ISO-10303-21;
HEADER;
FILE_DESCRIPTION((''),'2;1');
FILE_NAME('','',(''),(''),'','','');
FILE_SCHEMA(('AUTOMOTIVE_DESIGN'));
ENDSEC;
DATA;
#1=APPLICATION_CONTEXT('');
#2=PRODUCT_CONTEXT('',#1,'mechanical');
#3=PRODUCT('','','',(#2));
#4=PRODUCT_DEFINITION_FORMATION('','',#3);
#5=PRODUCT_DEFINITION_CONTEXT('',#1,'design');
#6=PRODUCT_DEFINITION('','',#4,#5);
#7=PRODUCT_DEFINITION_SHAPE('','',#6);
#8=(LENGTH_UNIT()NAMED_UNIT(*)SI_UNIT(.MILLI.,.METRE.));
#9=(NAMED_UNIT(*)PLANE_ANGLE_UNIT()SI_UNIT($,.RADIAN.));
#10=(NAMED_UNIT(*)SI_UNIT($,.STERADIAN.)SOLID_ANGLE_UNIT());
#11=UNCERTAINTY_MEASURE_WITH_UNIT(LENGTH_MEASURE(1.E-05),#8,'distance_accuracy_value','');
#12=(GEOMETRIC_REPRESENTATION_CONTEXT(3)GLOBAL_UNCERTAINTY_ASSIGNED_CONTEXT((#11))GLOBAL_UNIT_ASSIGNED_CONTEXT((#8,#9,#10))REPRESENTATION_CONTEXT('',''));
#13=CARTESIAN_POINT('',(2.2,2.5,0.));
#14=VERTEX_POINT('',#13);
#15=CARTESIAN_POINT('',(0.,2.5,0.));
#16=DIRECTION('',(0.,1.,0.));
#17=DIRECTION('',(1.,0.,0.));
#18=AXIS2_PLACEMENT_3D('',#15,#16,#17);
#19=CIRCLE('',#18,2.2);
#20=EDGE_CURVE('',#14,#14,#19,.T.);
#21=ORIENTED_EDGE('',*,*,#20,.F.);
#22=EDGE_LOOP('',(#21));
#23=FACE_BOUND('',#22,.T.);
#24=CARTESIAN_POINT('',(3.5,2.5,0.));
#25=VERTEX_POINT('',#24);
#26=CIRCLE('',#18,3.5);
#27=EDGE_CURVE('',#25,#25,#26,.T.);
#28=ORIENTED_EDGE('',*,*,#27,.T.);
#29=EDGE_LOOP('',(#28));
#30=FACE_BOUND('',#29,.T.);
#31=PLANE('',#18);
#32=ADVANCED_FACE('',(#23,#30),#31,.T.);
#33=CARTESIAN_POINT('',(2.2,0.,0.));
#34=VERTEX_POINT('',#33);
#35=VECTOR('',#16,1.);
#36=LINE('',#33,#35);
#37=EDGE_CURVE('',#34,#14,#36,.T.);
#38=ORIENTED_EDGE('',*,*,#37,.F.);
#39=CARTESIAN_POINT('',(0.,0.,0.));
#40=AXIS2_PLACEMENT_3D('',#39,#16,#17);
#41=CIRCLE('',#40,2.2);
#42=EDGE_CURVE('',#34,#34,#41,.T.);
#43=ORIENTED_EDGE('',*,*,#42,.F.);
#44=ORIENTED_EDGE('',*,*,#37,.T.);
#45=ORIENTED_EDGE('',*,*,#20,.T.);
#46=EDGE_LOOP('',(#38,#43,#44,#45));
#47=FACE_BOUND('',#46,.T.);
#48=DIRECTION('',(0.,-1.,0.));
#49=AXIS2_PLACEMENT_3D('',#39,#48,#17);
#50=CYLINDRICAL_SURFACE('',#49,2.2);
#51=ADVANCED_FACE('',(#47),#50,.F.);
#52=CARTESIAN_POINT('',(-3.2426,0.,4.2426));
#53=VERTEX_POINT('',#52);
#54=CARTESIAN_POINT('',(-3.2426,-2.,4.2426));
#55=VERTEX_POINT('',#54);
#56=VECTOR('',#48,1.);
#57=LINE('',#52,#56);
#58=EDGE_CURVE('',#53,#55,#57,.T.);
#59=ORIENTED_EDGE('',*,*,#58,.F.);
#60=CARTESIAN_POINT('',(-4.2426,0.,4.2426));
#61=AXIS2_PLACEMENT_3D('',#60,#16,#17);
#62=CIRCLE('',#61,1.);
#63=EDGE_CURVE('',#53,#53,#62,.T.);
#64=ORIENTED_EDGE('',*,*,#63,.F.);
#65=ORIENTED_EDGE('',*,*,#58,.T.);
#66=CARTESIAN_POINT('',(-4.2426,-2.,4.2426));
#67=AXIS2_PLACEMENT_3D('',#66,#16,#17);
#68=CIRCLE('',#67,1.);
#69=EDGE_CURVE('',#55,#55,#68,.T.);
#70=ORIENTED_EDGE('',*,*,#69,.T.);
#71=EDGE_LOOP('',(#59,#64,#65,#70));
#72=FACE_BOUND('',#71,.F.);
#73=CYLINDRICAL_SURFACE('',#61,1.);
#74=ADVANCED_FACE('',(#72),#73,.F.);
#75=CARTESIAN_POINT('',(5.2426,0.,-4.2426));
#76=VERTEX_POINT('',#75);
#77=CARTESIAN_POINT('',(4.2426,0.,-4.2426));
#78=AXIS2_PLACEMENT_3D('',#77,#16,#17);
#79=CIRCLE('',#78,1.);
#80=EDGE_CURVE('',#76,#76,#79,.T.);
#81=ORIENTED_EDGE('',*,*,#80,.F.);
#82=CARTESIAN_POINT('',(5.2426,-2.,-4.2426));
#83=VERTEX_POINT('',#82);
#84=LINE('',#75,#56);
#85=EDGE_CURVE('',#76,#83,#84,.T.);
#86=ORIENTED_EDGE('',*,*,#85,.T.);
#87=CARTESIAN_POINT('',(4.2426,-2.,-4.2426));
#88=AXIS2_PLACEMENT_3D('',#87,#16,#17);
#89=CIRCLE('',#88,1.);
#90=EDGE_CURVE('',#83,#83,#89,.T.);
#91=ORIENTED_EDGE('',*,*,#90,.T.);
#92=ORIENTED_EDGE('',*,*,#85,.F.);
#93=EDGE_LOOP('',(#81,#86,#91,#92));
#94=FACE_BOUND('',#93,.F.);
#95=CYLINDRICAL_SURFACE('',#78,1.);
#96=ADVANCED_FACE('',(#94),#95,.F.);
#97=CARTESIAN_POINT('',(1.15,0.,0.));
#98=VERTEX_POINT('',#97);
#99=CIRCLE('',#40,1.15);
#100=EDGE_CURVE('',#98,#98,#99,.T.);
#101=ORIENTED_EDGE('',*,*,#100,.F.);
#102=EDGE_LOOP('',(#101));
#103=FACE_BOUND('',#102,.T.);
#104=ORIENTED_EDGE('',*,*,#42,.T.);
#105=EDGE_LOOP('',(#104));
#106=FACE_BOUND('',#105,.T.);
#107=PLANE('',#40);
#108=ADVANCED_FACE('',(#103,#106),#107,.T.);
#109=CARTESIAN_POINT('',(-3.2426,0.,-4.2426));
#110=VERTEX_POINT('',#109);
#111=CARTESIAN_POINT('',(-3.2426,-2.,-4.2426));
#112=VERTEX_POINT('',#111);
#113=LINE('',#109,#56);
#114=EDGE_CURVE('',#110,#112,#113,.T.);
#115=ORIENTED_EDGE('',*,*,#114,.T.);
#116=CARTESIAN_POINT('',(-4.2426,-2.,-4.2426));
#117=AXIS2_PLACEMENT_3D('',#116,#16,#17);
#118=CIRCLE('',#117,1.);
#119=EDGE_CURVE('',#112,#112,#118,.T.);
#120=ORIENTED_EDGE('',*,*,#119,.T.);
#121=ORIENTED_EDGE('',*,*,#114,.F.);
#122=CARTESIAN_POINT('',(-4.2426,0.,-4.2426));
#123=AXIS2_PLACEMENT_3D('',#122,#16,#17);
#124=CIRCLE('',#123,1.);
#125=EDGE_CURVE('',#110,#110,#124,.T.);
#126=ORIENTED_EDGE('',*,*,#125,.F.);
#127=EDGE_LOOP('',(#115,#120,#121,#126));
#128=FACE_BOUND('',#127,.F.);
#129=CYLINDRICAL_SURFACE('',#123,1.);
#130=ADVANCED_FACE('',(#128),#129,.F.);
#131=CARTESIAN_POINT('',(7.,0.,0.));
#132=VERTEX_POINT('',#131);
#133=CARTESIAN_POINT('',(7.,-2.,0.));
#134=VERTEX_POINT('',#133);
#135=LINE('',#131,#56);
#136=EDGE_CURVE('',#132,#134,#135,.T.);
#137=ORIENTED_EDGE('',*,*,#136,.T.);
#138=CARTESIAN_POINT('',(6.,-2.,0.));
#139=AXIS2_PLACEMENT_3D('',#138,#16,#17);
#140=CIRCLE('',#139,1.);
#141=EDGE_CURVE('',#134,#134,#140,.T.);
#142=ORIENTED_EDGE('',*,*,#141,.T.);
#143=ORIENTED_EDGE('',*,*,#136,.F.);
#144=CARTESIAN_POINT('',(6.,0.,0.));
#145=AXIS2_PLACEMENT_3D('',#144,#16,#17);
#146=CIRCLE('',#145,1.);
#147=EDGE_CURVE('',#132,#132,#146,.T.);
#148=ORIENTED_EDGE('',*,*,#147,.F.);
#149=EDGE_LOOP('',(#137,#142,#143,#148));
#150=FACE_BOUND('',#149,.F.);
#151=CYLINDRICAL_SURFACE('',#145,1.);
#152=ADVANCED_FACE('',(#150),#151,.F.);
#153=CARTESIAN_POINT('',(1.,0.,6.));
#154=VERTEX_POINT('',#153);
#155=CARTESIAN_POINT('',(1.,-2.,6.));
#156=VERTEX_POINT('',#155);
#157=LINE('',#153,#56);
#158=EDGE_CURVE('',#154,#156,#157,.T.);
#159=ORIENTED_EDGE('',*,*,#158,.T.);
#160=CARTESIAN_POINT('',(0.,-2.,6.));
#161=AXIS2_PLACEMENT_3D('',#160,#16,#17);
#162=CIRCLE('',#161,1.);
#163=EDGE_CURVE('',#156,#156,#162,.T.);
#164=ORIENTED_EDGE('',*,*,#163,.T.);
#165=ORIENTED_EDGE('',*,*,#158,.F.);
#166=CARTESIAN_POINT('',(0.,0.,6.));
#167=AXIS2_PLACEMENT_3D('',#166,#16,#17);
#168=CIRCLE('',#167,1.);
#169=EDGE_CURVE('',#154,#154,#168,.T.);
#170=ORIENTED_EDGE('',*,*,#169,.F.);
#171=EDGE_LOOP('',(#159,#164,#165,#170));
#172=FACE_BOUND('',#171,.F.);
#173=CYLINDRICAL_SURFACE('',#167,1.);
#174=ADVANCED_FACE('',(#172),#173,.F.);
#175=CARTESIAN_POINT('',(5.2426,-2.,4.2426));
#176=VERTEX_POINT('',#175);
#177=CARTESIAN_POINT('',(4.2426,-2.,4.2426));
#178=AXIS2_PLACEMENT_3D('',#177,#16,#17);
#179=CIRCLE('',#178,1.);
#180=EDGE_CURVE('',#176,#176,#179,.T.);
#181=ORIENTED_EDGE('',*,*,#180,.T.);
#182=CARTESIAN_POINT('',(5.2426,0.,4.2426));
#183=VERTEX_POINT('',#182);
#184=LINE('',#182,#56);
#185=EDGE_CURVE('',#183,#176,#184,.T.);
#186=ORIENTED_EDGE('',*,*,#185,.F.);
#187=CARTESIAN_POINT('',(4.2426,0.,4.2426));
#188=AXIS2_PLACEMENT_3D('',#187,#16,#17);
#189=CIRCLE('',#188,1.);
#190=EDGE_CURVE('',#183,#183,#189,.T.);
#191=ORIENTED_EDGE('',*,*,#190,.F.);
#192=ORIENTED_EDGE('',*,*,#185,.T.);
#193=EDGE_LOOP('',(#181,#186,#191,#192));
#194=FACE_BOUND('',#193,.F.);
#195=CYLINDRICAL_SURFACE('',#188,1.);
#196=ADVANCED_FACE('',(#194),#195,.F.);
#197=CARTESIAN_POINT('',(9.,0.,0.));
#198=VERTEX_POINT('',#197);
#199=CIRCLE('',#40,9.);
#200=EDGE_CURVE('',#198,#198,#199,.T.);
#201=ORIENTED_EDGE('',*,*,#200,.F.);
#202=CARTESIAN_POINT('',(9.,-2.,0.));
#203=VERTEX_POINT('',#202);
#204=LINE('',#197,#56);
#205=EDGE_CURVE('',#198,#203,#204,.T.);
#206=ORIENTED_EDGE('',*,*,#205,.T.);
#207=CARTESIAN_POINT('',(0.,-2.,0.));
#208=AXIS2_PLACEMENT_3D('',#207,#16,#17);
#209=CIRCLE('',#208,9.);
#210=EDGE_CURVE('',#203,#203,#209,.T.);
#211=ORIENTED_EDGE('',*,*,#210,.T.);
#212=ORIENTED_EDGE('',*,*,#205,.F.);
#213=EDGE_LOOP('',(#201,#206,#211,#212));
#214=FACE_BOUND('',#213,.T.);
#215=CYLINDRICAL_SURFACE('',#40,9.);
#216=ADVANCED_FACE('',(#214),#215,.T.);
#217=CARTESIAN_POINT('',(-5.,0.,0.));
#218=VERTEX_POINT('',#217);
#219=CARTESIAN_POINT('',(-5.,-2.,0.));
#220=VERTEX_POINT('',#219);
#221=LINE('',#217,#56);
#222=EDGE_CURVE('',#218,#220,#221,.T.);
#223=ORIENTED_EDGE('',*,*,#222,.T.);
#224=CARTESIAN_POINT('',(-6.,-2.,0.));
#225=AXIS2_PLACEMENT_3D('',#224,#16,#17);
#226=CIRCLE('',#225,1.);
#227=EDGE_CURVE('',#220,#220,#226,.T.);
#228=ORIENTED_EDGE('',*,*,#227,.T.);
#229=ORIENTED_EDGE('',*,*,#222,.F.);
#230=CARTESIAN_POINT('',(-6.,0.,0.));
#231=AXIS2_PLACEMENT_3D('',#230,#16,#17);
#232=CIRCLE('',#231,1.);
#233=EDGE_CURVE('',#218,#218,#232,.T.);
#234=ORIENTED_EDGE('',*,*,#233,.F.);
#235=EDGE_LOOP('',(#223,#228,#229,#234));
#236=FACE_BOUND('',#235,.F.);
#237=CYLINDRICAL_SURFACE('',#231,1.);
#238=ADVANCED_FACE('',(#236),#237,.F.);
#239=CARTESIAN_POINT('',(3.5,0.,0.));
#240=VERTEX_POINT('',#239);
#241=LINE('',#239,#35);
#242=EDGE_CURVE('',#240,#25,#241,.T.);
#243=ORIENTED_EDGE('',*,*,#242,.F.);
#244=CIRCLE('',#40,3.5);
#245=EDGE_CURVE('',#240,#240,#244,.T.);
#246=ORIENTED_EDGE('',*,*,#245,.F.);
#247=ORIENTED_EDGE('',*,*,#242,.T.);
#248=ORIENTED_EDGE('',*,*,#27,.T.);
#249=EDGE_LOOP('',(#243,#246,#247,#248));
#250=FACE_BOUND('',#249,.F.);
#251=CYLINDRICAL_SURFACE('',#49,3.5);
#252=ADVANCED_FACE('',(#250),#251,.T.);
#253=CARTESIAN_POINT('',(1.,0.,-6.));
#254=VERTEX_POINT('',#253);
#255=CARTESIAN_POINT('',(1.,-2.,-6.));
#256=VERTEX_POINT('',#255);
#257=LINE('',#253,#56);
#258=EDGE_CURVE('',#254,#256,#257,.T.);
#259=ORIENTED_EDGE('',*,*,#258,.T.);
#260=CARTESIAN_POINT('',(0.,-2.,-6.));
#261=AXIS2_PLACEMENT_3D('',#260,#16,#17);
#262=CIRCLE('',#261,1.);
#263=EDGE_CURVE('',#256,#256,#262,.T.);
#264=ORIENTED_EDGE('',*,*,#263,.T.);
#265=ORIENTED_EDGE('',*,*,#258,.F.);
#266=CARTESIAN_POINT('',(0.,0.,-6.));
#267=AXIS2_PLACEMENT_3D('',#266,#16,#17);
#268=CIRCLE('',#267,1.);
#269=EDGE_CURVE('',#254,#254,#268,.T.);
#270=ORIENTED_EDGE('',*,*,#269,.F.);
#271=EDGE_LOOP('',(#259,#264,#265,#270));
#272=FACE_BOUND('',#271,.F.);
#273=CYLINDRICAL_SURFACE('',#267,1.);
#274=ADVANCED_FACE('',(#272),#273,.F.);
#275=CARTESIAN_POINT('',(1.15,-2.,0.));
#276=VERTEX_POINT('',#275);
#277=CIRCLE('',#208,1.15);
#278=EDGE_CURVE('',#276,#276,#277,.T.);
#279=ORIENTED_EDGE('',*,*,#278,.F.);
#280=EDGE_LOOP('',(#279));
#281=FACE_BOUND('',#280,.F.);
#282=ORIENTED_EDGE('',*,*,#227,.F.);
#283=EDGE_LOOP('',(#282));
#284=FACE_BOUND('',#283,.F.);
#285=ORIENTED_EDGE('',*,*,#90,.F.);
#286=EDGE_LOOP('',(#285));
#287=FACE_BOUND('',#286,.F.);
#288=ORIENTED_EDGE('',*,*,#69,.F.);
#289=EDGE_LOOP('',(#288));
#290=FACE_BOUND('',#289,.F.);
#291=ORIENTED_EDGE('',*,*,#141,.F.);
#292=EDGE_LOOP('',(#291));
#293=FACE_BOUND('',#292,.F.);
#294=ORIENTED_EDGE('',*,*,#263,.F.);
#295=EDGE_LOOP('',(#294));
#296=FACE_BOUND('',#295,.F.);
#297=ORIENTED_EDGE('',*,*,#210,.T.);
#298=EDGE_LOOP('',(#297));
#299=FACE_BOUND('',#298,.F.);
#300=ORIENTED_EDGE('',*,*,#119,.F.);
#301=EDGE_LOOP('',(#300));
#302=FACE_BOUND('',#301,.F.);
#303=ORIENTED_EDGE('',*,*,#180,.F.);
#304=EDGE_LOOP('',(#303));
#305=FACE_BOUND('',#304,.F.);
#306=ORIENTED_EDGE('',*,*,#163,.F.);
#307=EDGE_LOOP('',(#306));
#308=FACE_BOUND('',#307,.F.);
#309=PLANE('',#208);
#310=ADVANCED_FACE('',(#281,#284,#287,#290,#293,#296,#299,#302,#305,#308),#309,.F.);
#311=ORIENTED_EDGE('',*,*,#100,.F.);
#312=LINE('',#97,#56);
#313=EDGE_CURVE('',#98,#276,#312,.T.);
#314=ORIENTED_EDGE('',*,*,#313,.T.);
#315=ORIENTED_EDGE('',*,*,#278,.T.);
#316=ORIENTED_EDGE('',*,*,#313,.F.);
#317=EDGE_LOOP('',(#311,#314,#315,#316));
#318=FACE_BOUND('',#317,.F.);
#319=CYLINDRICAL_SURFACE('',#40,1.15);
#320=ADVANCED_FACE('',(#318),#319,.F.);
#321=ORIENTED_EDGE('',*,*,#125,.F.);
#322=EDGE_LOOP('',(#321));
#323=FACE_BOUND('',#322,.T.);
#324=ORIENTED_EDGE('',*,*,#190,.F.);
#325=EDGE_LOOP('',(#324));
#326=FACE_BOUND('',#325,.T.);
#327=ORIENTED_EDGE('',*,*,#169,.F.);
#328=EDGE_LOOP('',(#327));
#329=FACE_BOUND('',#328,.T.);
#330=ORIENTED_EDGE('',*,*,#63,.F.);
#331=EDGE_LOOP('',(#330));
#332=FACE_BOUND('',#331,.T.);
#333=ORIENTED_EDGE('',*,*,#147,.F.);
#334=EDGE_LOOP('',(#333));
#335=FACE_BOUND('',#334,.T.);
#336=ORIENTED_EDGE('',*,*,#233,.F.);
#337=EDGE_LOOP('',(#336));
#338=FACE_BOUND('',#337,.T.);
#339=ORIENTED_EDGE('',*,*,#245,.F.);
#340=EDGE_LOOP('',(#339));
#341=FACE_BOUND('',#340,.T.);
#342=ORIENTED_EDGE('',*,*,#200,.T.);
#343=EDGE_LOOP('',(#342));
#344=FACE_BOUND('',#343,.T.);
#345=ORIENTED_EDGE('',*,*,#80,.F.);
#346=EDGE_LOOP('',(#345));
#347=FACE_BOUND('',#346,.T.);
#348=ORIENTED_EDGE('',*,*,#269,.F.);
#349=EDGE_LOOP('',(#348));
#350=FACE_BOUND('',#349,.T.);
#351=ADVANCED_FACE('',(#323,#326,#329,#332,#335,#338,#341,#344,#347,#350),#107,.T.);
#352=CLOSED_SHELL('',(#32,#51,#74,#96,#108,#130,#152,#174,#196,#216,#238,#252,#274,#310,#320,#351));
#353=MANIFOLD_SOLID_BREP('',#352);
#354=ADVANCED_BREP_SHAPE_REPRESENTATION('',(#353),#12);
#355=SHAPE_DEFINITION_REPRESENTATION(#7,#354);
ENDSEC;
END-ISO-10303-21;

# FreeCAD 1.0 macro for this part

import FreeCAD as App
import Part
import Sketcher
Q = App.Units.Quantity

doc = App.newDocument("Part")
body = doc.addObject("PartDesign::Body", "Body")

# Sketch on XZ plane
sketch1 = body.newObject("Sketcher::SketchObject", "Sketch")
sketch1.AttachmentSupport = (doc.getObject("XZ_Plane"), [""])
sketch1.MapMode = "FlatFace"
sketch1.addGeometry(Part.Circle(App.Vector(0, 0, 0), App.Vector(0, 0, 1), 9), False)
sketch1.addGeometry(Part.Circle(App.Vector(-4.2, 4.2, 0), App.Vector(0, 0, 1), 1), False)
sketch1.addGeometry(Part.Circle(App.Vector(0, 6, 0), App.Vector(0, 0, 1), 1), False)
sketch1.addGeometry(Part.Circle(App.Vector(4.2, 4.2, 0), App.Vector(0, 0, 1), 1), False)
sketch1.addGeometry(Part.Circle(App.Vector(-6, 0, 0), App.Vector(0, 0, 1), 1), False)
sketch1.addGeometry(Part.Circle(App.Vector(-4.2, -4.2, 0), App.Vector(0, 0, 1), 1), False)
sketch1.addGeometry(Part.Circle(App.Vector(4.2, -4.2, 0), App.Vector(0, 0, 1), 1), False)
sketch1.addGeometry(Part.Circle(App.Vector(6, 0, 0), App.Vector(0, 0, 1), 1), False)
sketch1.addGeometry(Part.Circle(App.Vector(0, -6, 0), App.Vector(0, 0, 1), 1), False)
sketch1.addGeometry(Part.Circle(App.Vector(0, 0, 0), App.Vector(0, 0, 1), 1.1), False)
sketch1.addConstraint(Sketcher.Constraint("Coincident", 0, 3, -1, 1))
sketch1.addConstraint(Sketcher.Constraint("Coincident", 9, 3, -1, 1))
sketch1.addConstraint(Sketcher.Constraint("Equal", 1, 2))
sketch1.addConstraint(Sketcher.Constraint("Equal", 2, 3))
sketch1.addConstraint(Sketcher.Constraint("Equal", 3, 4))
sketch1.addConstraint(Sketcher.Constraint("Equal", 4, 5))
sketch1.addConstraint(Sketcher.Constraint("Equal", 5, 6))
sketch1.addConstraint(Sketcher.Constraint("Equal", 6, 7))
sketch1.addConstraint(Sketcher.Constraint("Equal", 7, 8))
sketch1.addConstraint(Sketcher.Constraint("Symmetric", 3, 3, 5, 3, -1, 1))
sketch1.addConstraint(Sketcher.Constraint("Symmetric", 1, 3, 6, 3, -1, 1))
sketch1.addConstraint(Sketcher.Constraint("Symmetric", 4, 3, 7, 3, -1, 1))
sketch1.addConstraint(Sketcher.Constraint("Symmetric", 2, 3, 8, 3, -1, 1))
sketch1.addConstraint(Sketcher.Constraint("Symmetric", 1, 3, 3, 3, -2))
sketch1.addConstraint(Sketcher.Constraint("PointOnObject", 2, 3, -2))
sketch1.addConstraint(Sketcher.Constraint("PointOnObject", 4, 3, -1))
sketch1.addConstraint(Sketcher.Constraint("Diameter", 0, Q("18 mm")))
sketch1.addConstraint(Sketcher.Constraint("Diameter", 1, Q("2 mm")))
sketch1.addConstraint(Sketcher.Constraint("Diameter", 9, Q("2.3 mm")))
sketch1.addConstraint(Sketcher.Constraint("DistanceY", -1, 1, 2, 3, Q("6 mm")))
sketch1.addConstraint(Sketcher.Constraint("DistanceX", 4, 3, -1, 1, Q("6 mm")))
sketch1.addConstraint(Sketcher.Constraint("DistanceX", 1, 3, -1, 1, Q("4.2426 mm")))
sketch1.addConstraint(Sketcher.Constraint("DistanceY", -1, 1, 1, 3, Q("4.2426 mm")))
pad1 = body.newObject("PartDesign::Pad", "Pad")
pad1.Profile = sketch1
pad1.Length = 2

# Sketch on XZ plane
sketch2 = body.newObject("Sketcher::SketchObject", "Sketch001")
sketch2.AttachmentSupport = (doc.getObject("XZ_Plane"), [""])
sketch2.MapMode = "FlatFace"
sketch2.addGeometry(Part.Circle(App.Vector(0, 0, 0), App.Vector(0, 0, 1), 3.5), False)
sketch2.addGeometry(Part.Circle(App.Vector(0, 0, 0), App.Vector(0, 0, 1), 2.2), False)
sketch2.addConstraint(Sketcher.Constraint("Coincident", 0, 3, -1, 1))
sketch2.addConstraint(Sketcher.Constraint("Coincident", 1, 3, -1, 1))
sketch2.addConstraint(Sketcher.Constraint("Diameter", 0, Q("7 mm")))
sketch2.addConstraint(Sketcher.Constraint("Diameter", 1, Q("4.4 mm")))
pad2 = body.newObject("PartDesign::Pad", "Pad001")
pad2.Profile = sketch2
pad2.Length = 2.5
pad2.Reversed = True

doc.recompute()
